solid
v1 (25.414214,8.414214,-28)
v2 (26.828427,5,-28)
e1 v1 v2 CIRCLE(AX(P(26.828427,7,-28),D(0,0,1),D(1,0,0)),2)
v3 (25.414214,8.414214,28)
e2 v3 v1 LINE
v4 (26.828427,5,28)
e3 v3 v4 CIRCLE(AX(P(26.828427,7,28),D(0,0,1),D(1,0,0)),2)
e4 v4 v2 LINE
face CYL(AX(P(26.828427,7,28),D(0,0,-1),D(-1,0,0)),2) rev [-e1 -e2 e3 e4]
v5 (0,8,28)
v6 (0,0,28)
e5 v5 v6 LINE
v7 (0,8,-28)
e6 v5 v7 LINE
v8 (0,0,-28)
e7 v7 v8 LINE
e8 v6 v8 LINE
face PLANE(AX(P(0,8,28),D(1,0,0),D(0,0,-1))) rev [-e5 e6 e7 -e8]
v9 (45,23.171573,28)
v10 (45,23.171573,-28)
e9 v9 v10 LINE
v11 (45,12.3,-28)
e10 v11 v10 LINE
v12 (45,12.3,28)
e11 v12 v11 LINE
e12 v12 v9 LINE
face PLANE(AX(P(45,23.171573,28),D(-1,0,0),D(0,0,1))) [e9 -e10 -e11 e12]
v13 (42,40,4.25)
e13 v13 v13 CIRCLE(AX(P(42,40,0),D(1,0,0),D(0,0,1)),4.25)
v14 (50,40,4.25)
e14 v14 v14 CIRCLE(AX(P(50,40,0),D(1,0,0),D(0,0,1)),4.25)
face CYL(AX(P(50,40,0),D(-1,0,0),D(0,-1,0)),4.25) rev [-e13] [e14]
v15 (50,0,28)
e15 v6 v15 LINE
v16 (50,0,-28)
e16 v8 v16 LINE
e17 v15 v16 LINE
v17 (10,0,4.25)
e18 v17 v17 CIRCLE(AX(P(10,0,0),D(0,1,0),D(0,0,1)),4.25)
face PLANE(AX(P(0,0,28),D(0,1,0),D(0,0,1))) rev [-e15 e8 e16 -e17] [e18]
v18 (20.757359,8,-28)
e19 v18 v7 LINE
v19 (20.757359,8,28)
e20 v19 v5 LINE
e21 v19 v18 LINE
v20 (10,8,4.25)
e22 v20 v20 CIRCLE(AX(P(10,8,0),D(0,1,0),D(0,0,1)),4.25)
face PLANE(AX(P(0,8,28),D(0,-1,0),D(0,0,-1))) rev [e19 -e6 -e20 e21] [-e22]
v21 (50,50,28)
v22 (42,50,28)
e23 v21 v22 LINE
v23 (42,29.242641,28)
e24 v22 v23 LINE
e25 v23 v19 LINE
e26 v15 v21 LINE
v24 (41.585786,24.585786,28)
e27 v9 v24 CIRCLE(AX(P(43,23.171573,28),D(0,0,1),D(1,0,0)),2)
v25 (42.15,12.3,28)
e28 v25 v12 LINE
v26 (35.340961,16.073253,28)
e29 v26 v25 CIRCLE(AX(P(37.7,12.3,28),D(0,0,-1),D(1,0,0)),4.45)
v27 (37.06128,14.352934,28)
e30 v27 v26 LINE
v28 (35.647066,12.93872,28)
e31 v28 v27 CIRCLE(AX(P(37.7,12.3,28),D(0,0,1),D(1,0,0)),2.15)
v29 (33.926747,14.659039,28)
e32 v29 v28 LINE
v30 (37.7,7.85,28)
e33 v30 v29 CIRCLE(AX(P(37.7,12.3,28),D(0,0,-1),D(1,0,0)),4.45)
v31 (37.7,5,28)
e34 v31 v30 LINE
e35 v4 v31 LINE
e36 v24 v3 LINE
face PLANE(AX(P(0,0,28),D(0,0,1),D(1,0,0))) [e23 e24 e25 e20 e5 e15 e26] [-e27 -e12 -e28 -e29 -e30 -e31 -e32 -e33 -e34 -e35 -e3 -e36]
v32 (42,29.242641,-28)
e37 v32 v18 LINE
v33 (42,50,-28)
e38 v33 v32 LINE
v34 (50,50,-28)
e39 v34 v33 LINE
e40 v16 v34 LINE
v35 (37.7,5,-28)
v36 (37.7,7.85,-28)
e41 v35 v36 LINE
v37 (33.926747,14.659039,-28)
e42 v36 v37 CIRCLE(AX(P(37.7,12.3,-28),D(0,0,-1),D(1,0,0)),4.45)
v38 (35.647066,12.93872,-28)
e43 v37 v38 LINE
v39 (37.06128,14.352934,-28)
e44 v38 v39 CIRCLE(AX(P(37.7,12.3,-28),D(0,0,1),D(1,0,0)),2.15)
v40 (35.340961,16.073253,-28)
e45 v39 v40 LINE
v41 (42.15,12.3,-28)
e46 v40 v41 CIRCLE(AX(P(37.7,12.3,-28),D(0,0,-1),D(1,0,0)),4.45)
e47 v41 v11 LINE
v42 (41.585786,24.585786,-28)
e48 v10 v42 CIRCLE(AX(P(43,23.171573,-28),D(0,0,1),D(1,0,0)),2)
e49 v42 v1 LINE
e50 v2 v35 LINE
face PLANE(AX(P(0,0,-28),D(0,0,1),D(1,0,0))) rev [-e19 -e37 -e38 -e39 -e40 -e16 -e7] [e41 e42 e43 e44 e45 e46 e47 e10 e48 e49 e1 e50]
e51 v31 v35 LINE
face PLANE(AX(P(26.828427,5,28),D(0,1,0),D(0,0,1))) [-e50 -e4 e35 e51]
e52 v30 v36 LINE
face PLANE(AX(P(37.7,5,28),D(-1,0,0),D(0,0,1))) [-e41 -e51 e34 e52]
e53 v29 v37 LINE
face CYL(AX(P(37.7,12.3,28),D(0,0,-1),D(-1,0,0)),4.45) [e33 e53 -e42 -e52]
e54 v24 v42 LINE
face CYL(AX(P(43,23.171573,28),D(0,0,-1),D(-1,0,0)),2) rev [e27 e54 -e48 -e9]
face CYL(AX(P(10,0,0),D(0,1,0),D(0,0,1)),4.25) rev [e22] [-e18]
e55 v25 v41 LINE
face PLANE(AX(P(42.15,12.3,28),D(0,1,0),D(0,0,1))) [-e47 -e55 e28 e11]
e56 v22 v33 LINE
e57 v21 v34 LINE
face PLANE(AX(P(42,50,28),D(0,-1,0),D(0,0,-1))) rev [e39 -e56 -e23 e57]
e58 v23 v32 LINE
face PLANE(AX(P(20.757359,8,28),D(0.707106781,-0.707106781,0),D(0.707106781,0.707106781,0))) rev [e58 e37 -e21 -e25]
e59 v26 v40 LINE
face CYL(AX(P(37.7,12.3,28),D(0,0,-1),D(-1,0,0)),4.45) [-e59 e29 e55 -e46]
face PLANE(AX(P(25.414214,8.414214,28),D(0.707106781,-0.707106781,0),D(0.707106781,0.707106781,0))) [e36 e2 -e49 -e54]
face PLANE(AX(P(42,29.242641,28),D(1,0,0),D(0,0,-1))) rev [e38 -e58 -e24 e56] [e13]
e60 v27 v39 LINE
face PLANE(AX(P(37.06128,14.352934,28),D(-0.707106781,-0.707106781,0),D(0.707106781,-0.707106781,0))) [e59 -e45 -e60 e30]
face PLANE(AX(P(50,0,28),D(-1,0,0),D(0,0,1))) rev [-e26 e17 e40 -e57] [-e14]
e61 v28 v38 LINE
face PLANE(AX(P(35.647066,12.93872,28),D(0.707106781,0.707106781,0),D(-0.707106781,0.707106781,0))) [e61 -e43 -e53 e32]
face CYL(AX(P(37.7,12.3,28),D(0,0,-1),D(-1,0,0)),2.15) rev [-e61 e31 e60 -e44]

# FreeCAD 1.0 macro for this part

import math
import FreeCAD as App
import Part
import Sketcher
from FreeCAD import Vector

doc = App.newDocument("Part")
body = doc.addObject("PartDesign::Body", "Body")

# Sketch on XY plane
sketch1 = doc.addObject("Sketcher::SketchObject", "Sketch")
body.addObject(sketch1)
sketch1.AttachmentSupport = (doc.XY_Plane, [""])
sketch1.MapMode = "FlatFace"
sketch1.addGeometry(Part.LineSegment(Vector(0, 0, 0), Vector(50, 0, 0)), False)
sketch1.addGeometry(Part.LineSegment(Vector(50, 0, 0), Vector(50, 50, 0)), False)
sketch1.addGeometry(Part.LineSegment(Vector(50, 50, 0), Vector(42, 50, 0)), False)
sketch1.addGeometry(Part.LineSegment(Vector(42, 50, 0), Vector(42, 29.2, 0)), False)
sketch1.addGeometry(Part.LineSegment(Vector(42, 29.2, 0), Vector(20.8, 8, 0)), False)
sketch1.addGeometry(Part.LineSegment(Vector(20.8, 8, 0), Vector(0, 8, 0)), False)
sketch1.addGeometry(Part.LineSegment(Vector(0, 8, 0), Vector(0, 0, 0)), False)
sketch1.addGeometry(Part.LineSegment(Vector(35.3, 16.1, 0), Vector(37.1, 14.4, 0)), False)
sketch1.addGeometry(Part.ArcOfCircle(Part.Circle(Vector(37.7, 12.3, 0), Vector(0, 0, 1), 2.1), math.radians(163), math.radians(467)), False)
sketch1.addGeometry(Part.LineSegment(Vector(35.6, 12.9, 0), Vector(33.9, 14.7, 0)), False)
sketch1.addGeometry(Part.ArcOfCircle(Part.Circle(Vector(37.7, 12.3, 0), Vector(0, 0, 1), 4.5), math.radians(148), math.radians(270)), False)
sketch1.addGeometry(Part.LineSegment(Vector(37.7, 7.8, 0), Vector(37.7, 5, 0)), False)
sketch1.addGeometry(Part.LineSegment(Vector(37.7, 5, 0), Vector(26.8, 5, 0)), False)
sketch1.addGeometry(Part.ArcOfCircle(Part.Circle(Vector(26.8, 7, 0), Vector(0, 0, 1), 2), math.radians(135), math.radians(270)), False)
sketch1.addGeometry(Part.LineSegment(Vector(25.4, 8.4, 0), Vector(41.6, 24.6, 0)), False)
sketch1.addGeometry(Part.ArcOfCircle(Part.Circle(Vector(43, 23.2, 0), Vector(0, 0, 1), 2), math.radians(0), math.radians(135)), False)
sketch1.addGeometry(Part.LineSegment(Vector(45, 23.2, 0), Vector(45, 12.3, 0)), False)
sketch1.addGeometry(Part.LineSegment(Vector(45, 12.3, 0), Vector(42.1, 12.3, 0)), False)
sketch1.addGeometry(Part.ArcOfCircle(Part.Circle(Vector(37.7, 12.3, 0), Vector(0, 0, 1), 4.5), math.radians(0), math.radians(122)), False)
sketch1.addConstraint(Sketcher.Constraint("Coincident", 0, 2, 1, 1))
sketch1.addConstraint(Sketcher.Constraint("Coincident", 1, 2, 2, 1))
sketch1.addConstraint(Sketcher.Constraint("Coincident", 2, 2, 3, 1))
sketch1.addConstraint(Sketcher.Constraint("Coincident", 3, 2, 4, 1))
sketch1.addConstraint(Sketcher.Constraint("Coincident", 4, 2, 5, 1))
sketch1.addConstraint(Sketcher.Constraint("Coincident", 5, 2, 6, 1))
sketch1.addConstraint(Sketcher.Constraint("Coincident", 6, 2, 0, 1))
sketch1.addConstraint(Sketcher.Constraint("Coincident", 7, 2, 8, 2))
sketch1.addConstraint(Sketcher.Constraint("Coincident", 8, 1, 9, 1))
sketch1.addConstraint(Sketcher.Constraint("Coincident", 9, 2, 10, 1))
sketch1.addConstraint(Sketcher.Constraint("Coincident", 10, 2, 11, 1))
sketch1.addConstraint(Sketcher.Constraint("Coincident", 11, 2, 12, 1))
sketch1.addConstraint(Sketcher.Constraint("Tangent", 12, 2, 13, 2))
sketch1.addConstraint(Sketcher.Constraint("Tangent", 13, 1, 14, 1))
sketch1.addConstraint(Sketcher.Constraint("Tangent", 14, 2, 15, 2))
sketch1.addConstraint(Sketcher.Constraint("Tangent", 15, 1, 16, 1))
sketch1.addConstraint(Sketcher.Constraint("Coincident", 16, 2, 17, 1))
sketch1.addConstraint(Sketcher.Constraint("Coincident", 17, 2, 18, 1))
sketch1.addConstraint(Sketcher.Constraint("Coincident", 18, 2, 7, 1))
sketch1.addConstraint(Sketcher.Constraint("Horizontal", 0))
sketch1.addConstraint(Sketcher.Constraint("Vertical", 1))
sketch1.addConstraint(Sketcher.Constraint("Horizontal", 2))
sketch1.addConstraint(Sketcher.Constraint("Vertical", 3))
sketch1.addConstraint(Sketcher.Constraint("Horizontal", 5))
sketch1.addConstraint(Sketcher.Constraint("Vertical", 6))
sketch1.addConstraint(Sketcher.Constraint("Vertical", 11))
sketch1.addConstraint(Sketcher.Constraint("Horizontal", 12))
sketch1.addConstraint(Sketcher.Constraint("Vertical", 16))
sketch1.addConstraint(Sketcher.Constraint("Horizontal", 17))
sketch1.addConstraint(Sketcher.Constraint("Coincident", 6, 2, -1, 1))
sketch1.addConstraint(Sketcher.Constraint("Coincident", 10, 3, 8, 3))
sketch1.addConstraint(Sketcher.Constraint("Coincident", 18, 3, 8, 3))
sketch1.addConstraint(Sketcher.Constraint("Equal", 13, 15))
sketch1.addConstraint(Sketcher.Constraint("Equal", 10, 18))
sketch1.addConstraint(Sketcher.Constraint("Perpendicular", 4, 7))
sketch1.addConstraint(Sketcher.Constraint("Parallel", 7, 9))
sketch1.addConstraint(Sketcher.Constraint("Perpendicular", 9, 14))
sketch1.addConstraint(Sketcher.Constraint("Horizontal", 18, 3, 16, 2))
sketch1.addConstraint(Sketcher.Constraint("Vertical", 18, 3, 10, 2))
sketch1.addConstraint(Sketcher.Constraint("Equal", 0, 1))
sketch1.addConstraint(Sketcher.Constraint("Equal", 5, 3))
sketch1.addConstraint(Sketcher.Constraint("Equal", 2, 6))
sketch1.addConstraint(Sketcher.Constraint("Equal", 17, 11))
sketch1.addConstraint(Sketcher.Constraint("Equal", 7, 9))
sketch1.addConstraint(Sketcher.Constraint("Radius", 13, 2.0))
sketch1.addConstraint(Sketcher.Constraint("DistanceX", 0, 1, 0, 2, 50.0))
sketch1.addConstraint(Sketcher.Constraint("DistanceX", 2, 2, 2, 1, 8.0))
sketch1.addConstraint(Sketcher.Constraint("Radius", 8, 2.15))
sketch1.addConstraint(Sketcher.Constraint("Radius", 10, 4.45))
sketch1.addConstraint(Sketcher.Constraint("DistanceY", -1, 1, 13, 3, 7.0))
sketch1.addConstraint(Sketcher.Constraint("DistanceX", -1, 1, 15, 3, 43.0))
sketch1.addConstraint(Sketcher.Constraint("DistanceX", 17, 2, 17, 1, 2.85))
sketch1.addConstraint(Sketcher.Constraint("Distance", 7, 2.432898))
sketch1.addConstraint(Sketcher.Constraint("DistanceX", 5, 2, 5, 1, 20.757359))
sketch1.addConstraint(Sketcher.Constraint("DistanceX", 12, 2, 12, 1, 10.871573))
pad1 = doc.addObject("PartDesign::Pad", "Pad")
body.addObject(pad1)
pad1.Profile = sketch1
pad1.Length = 56
pad1.Midplane = True

# Sketch on XZ plane
sketch2 = doc.addObject("Sketcher::SketchObject", "Sketch001")
body.addObject(sketch2)
sketch2.AttachmentSupport = (doc.XZ_Plane, [""])
sketch2.MapMode = "FlatFace"
sketch2.AttachmentOffset = App.Placement(Vector(0, 0, -8), App.Rotation())
sketch2.addGeometry(Part.Circle(Vector(10, 0, 0), Vector(0, 0, 1), 4.2), False)
sketch2.addConstraint(Sketcher.Constraint("PointOnObject", 0, 3, -1))
sketch2.addConstraint(Sketcher.Constraint("Diameter", 0, 8.5))
sketch2.addConstraint(Sketcher.Constraint("DistanceX", -1, 1, 0, 3, 10.0))
pocket1 = doc.addObject("PartDesign::Pocket", "Pocket")
body.addObject(pocket1)
pocket1.Profile = sketch2
pocket1.Type = "ThroughAll"
pocket1.Reversed = True
doc.recompute()

datumplane = doc.addObject("PartDesign::Plane", "DatumPlane")
body.addObject(datumplane)
datumplane.Placement = App.Placement(Vector(25, 25, 0), App.Rotation(Vector(-0.707106781, 0.707106781, 0), Vector(0, 0, -1), Vector(-0.707106781, -0.707106781, 0), "ZXY"))
mirrored = doc.addObject("PartDesign::Mirrored", "Mirrored")
body.addObject(mirrored)
mirrored.Originals = [pocket1]
mirrored.MirrorPlane = (datumplane, [""])
body.Tip = mirrored

doc.recompute()
